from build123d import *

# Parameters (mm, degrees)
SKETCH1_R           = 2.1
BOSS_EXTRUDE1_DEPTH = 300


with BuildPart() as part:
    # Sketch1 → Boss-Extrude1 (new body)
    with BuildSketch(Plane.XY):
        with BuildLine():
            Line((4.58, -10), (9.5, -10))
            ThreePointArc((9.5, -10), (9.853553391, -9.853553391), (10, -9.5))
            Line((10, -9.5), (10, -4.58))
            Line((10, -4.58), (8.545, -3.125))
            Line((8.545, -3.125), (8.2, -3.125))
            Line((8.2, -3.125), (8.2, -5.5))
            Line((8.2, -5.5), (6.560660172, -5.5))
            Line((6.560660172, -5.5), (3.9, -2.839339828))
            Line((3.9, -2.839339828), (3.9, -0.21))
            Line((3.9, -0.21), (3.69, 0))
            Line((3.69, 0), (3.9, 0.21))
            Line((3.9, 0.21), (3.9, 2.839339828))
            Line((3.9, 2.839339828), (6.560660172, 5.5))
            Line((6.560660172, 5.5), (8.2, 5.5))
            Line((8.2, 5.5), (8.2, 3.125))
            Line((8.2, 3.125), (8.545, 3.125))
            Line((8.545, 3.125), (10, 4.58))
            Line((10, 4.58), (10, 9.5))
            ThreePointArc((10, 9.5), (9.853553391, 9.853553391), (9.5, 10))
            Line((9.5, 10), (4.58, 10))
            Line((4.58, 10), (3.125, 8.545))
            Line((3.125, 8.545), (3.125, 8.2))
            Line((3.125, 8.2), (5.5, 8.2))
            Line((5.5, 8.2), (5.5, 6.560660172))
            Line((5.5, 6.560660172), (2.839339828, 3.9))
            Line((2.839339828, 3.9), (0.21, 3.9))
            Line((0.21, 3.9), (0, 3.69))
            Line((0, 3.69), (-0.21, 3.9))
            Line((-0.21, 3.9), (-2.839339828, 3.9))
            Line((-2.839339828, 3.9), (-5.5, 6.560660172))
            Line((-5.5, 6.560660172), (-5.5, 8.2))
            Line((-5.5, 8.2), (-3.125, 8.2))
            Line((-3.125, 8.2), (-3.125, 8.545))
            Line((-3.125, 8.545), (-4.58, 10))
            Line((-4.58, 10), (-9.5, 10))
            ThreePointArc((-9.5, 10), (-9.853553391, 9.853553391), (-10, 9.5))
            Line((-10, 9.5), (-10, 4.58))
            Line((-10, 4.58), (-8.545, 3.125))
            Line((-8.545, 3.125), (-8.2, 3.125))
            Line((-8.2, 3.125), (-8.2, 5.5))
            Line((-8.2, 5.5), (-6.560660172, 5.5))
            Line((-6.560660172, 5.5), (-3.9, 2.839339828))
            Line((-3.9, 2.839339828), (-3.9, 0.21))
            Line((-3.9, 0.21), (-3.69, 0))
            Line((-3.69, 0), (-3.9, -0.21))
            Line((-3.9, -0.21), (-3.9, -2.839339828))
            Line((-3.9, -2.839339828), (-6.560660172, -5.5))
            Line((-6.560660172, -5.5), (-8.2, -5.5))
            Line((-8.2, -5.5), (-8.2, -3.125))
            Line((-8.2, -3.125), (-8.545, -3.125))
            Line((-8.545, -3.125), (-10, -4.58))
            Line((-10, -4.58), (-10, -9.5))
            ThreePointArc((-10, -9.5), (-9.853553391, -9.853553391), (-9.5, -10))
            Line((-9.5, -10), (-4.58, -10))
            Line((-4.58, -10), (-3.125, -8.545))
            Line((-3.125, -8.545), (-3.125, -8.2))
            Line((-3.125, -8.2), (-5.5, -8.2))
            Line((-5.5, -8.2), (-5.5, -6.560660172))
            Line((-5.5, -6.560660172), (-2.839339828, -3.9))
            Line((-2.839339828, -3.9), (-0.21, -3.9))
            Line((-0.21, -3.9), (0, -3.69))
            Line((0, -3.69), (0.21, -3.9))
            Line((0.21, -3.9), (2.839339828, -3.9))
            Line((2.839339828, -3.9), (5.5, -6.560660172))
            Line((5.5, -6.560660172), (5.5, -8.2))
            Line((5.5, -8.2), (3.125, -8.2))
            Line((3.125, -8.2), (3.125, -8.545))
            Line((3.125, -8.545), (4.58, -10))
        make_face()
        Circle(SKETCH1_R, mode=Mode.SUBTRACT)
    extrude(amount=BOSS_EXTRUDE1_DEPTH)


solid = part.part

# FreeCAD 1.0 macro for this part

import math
import FreeCAD as App
import Part
import Sketcher

doc = App.newDocument("Part")
params = doc.addObject("Spreadsheet::Sheet", "Params")
for row, (alias, value) in enumerate([
    ("sketch1_diameter", "4.2 mm"),
    ("sketch1_radius", "0.5 mm"),
    ("sketch1_width", "4.92 mm"),
    ("pad1_length", "300 mm"),
], start=1):
    params.set(f"A{row}", alias)
    params.set(f"B{row}", "=" + value)
    params.setAlias(f"B{row}", alias)

body = doc.addObject("PartDesign::Body", "Body")

sketch1 = doc.addObject("Sketcher::SketchObject", "Sketch")
body.addObject(sketch1)
sketch1.AttachmentSupport = (doc.XY_Plane, [""])
sketch1.MapMode = "FlatFace"
sketch1.addGeometry([
    Part.LineSegment(App.Vector(4.58, -10, 0), App.Vector(9.5, -10, 0)),
    Part.ArcOfCircle(Part.Circle(App.Vector(9.5, -9.5, 0), App.Vector(0, 0, 1), 0.5), math.radians(-90), math.radians(0)),
    Part.LineSegment(App.Vector(10, -9.5, 0), App.Vector(10, -4.58, 0)),
    Part.LineSegment(App.Vector(10, -4.58, 0), App.Vector(8.54, -3.12, 0)),
    Part.LineSegment(App.Vector(8.54, -3.12, 0), App.Vector(8.2, -3.12, 0)),
    Part.LineSegment(App.Vector(8.2, -3.12, 0), App.Vector(8.2, -5.5, 0)),
    Part.LineSegment(App.Vector(8.2, -5.5, 0), App.Vector(6.56, -5.5, 0)),
    Part.LineSegment(App.Vector(6.56, -5.5, 0), App.Vector(3.9, -2.84, 0)),
    Part.LineSegment(App.Vector(3.9, -2.84, 0), App.Vector(3.9, -0.21, 0)),
    Part.LineSegment(App.Vector(3.9, -0.21, 0), App.Vector(3.69, 0, 0)),
    Part.LineSegment(App.Vector(3.69, 0, 0), App.Vector(3.9, 0.21, 0)),
    Part.LineSegment(App.Vector(3.9, 0.21, 0), App.Vector(3.9, 2.84, 0)),
    Part.LineSegment(App.Vector(3.9, 2.84, 0), App.Vector(6.56, 5.5, 0)),
    Part.LineSegment(App.Vector(6.56, 5.5, 0), App.Vector(8.2, 5.5, 0)),
    Part.LineSegment(App.Vector(8.2, 5.5, 0), App.Vector(8.2, 3.12, 0)),
    Part.LineSegment(App.Vector(8.2, 3.12, 0), App.Vector(8.54, 3.12, 0)),
    Part.LineSegment(App.Vector(8.54, 3.12, 0), App.Vector(10, 4.58, 0)),
    Part.LineSegment(App.Vector(10, 4.58, 0), App.Vector(10, 9.5, 0)),
    Part.ArcOfCircle(Part.Circle(App.Vector(9.5, 9.5, 0), App.Vector(0, 0, 1), 0.5), math.radians(0), math.radians(90)),
    Part.LineSegment(App.Vector(9.5, 10, 0), App.Vector(4.58, 10, 0)),
    Part.LineSegment(App.Vector(4.58, 10, 0), App.Vector(3.12, 8.54, 0)),
    Part.LineSegment(App.Vector(3.12, 8.54, 0), App.Vector(3.12, 8.2, 0)),
    Part.LineSegment(App.Vector(3.12, 8.2, 0), App.Vector(5.5, 8.2, 0)),
    Part.LineSegment(App.Vector(5.5, 8.2, 0), App.Vector(5.5, 6.56, 0)),
    Part.LineSegment(App.Vector(5.5, 6.56, 0), App.Vector(2.84, 3.9, 0)),
    Part.LineSegment(App.Vector(2.84, 3.9, 0), App.Vector(0.21, 3.9, 0)),
    Part.LineSegment(App.Vector(0.21, 3.9, 0), App.Vector(0, 3.69, 0)),
    Part.LineSegment(App.Vector(0, 3.69, 0), App.Vector(-0.21, 3.9, 0)),
    Part.LineSegment(App.Vector(-0.21, 3.9, 0), App.Vector(-2.84, 3.9, 0)),
    Part.LineSegment(App.Vector(-2.84, 3.9, 0), App.Vector(-5.5, 6.56, 0)),
    Part.LineSegment(App.Vector(-5.5, 6.56, 0), App.Vector(-5.5, 8.2, 0)),
    Part.LineSegment(App.Vector(-5.5, 8.2, 0), App.Vector(-3.12, 8.2, 0)),
    Part.LineSegment(App.Vector(-3.12, 8.2, 0), App.Vector(-3.12, 8.54, 0)),
    Part.LineSegment(App.Vector(-3.12, 8.54, 0), App.Vector(-4.58, 10, 0)),
    Part.LineSegment(App.Vector(-4.58, 10, 0), App.Vector(-9.5, 10, 0)),
    Part.ArcOfCircle(Part.Circle(App.Vector(-9.5, 9.5, 0), App.Vector(0, 0, 1), 0.5), math.radians(90), math.radians(180)),
    Part.LineSegment(App.Vector(-10, 9.5, 0), App.Vector(-10, 4.58, 0)),
    Part.LineSegment(App.Vector(-10, 4.58, 0), App.Vector(-8.54, 3.12, 0)),
    Part.LineSegment(App.Vector(-8.54, 3.12, 0), App.Vector(-8.2, 3.12, 0)),
    Part.LineSegment(App.Vector(-8.2, 3.12, 0), App.Vector(-8.2, 5.5, 0)),
    Part.LineSegment(App.Vector(-8.2, 5.5, 0), App.Vector(-6.56, 5.5, 0)),
    Part.LineSegment(App.Vector(-6.56, 5.5, 0), App.Vector(-3.9, 2.84, 0)),
    Part.LineSegment(App.Vector(-3.9, 2.84, 0), App.Vector(-3.9, 0.21, 0)),
    Part.LineSegment(App.Vector(-3.9, 0.21, 0), App.Vector(-3.69, 0, 0)),
    Part.LineSegment(App.Vector(-3.69, 0, 0), App.Vector(-3.9, -0.21, 0)),
    Part.LineSegment(App.Vector(-3.9, -0.21, 0), App.Vector(-3.9, -2.84, 0)),
    Part.LineSegment(App.Vector(-3.9, -2.84, 0), App.Vector(-6.56, -5.5, 0)),
    Part.LineSegment(App.Vector(-6.56, -5.5, 0), App.Vector(-8.2, -5.5, 0)),
    Part.LineSegment(App.Vector(-8.2, -5.5, 0), App.Vector(-8.2, -3.12, 0)),
    Part.LineSegment(App.Vector(-8.2, -3.12, 0), App.Vector(-8.54, -3.12, 0)),
    Part.LineSegment(App.Vector(-8.54, -3.12, 0), App.Vector(-10, -4.58, 0)),
    Part.LineSegment(App.Vector(-10, -4.58, 0), App.Vector(-10, -9.5, 0)),
    Part.ArcOfCircle(Part.Circle(App.Vector(-9.5, -9.5, 0), App.Vector(0, 0, 1), 0.5), math.radians(180), math.radians(270)),
    Part.LineSegment(App.Vector(-9.5, -10, 0), App.Vector(-4.58, -10, 0)),
    Part.LineSegment(App.Vector(-4.58, -10, 0), App.Vector(-3.12, -8.54, 0)),
    Part.LineSegment(App.Vector(-3.12, -8.54, 0), App.Vector(-3.12, -8.2, 0)),
    Part.LineSegment(App.Vector(-3.12, -8.2, 0), App.Vector(-5.5, -8.2, 0)),
    Part.LineSegment(App.Vector(-5.5, -8.2, 0), App.Vector(-5.5, -6.56, 0)),
    Part.LineSegment(App.Vector(-5.5, -6.56, 0), App.Vector(-2.84, -3.9, 0)),
    Part.LineSegment(App.Vector(-2.84, -3.9, 0), App.Vector(-0.21, -3.9, 0)),
    Part.LineSegment(App.Vector(-0.21, -3.9, 0), App.Vector(0, -3.69, 0)),
    Part.LineSegment(App.Vector(0, -3.69, 0), App.Vector(0.21, -3.9, 0)),
    Part.LineSegment(App.Vector(0.21, -3.9, 0), App.Vector(2.84, -3.9, 0)),
    Part.LineSegment(App.Vector(2.84, -3.9, 0), App.Vector(5.5, -6.56, 0)),
    Part.LineSegment(App.Vector(5.5, -6.56, 0), App.Vector(5.5, -8.2, 0)),
    Part.LineSegment(App.Vector(5.5, -8.2, 0), App.Vector(3.12, -8.2, 0)),
    Part.LineSegment(App.Vector(3.12, -8.2, 0), App.Vector(3.12, -8.54, 0)),
    Part.LineSegment(App.Vector(3.12, -8.54, 0), App.Vector(4.58, -10, 0)),
    Part.Circle(App.Vector(0, 0, 0), App.Vector(0, 0, 1), 2.1),
], False)
sketch1.addConstraint([
    Sketcher.Constraint("Tangent", 0, 2, 1, 1),
    Sketcher.Constraint("Tangent", 1, 2, 2, 1),
    Sketcher.Constraint("Coincident", 2, 2, 3, 1),
    Sketcher.Constraint("Coincident", 3, 2, 4, 1),
    Sketcher.Constraint("Coincident", 4, 2, 5, 1),
    Sketcher.Constraint("Coincident", 5, 2, 6, 1),
    Sketcher.Constraint("Coincident", 6, 2, 7, 1),
    Sketcher.Constraint("Coincident", 7, 2, 8, 1),
    Sketcher.Constraint("Coincident", 8, 2, 9, 1),
    Sketcher.Constraint("Coincident", 9, 2, 10, 1),
    Sketcher.Constraint("Coincident", 10, 2, 11, 1),
    Sketcher.Constraint("Coincident", 11, 2, 12, 1),
    Sketcher.Constraint("Coincident", 12, 2, 13, 1),
    Sketcher.Constraint("Coincident", 13, 2, 14, 1),
    Sketcher.Constraint("Coincident", 14, 2, 15, 1),
    Sketcher.Constraint("Coincident", 15, 2, 16, 1),
    Sketcher.Constraint("Coincident", 16, 2, 17, 1),
    Sketcher.Constraint("Tangent", 17, 2, 18, 1),
    Sketcher.Constraint("Tangent", 18, 2, 19, 1),
    Sketcher.Constraint("Coincident", 19, 2, 20, 1),
    Sketcher.Constraint("Coincident", 20, 2, 21, 1),
    Sketcher.Constraint("Coincident", 21, 2, 22, 1),
    Sketcher.Constraint("Coincident", 22, 2, 23, 1),
    Sketcher.Constraint("Coincident", 23, 2, 24, 1),
    Sketcher.Constraint("Coincident", 24, 2, 25, 1),
    Sketcher.Constraint("Coincident", 25, 2, 26, 1),
    Sketcher.Constraint("Coincident", 26, 2, 27, 1),
    Sketcher.Constraint("Coincident", 27, 2, 28, 1),
    Sketcher.Constraint("Coincident", 28, 2, 29, 1),
    Sketcher.Constraint("Coincident", 29, 2, 30, 1),
    Sketcher.Constraint("Coincident", 30, 2, 31, 1),
    Sketcher.Constraint("Coincident", 31, 2, 32, 1),
    Sketcher.Constraint("Coincident", 32, 2, 33, 1),
    Sketcher.Constraint("Coincident", 33, 2, 34, 1),
    Sketcher.Constraint("Tangent", 34, 2, 35, 1),
    Sketcher.Constraint("Tangent", 35, 2, 36, 1),
    Sketcher.Constraint("Coincident", 36, 2, 37, 1),
    Sketcher.Constraint("Coincident", 37, 2, 38, 1),
    Sketcher.Constraint("Coincident", 38, 2, 39, 1),
    Sketcher.Constraint("Coincident", 39, 2, 40, 1),
    Sketcher.Constraint("Coincident", 40, 2, 41, 1),
    Sketcher.Constraint("Coincident", 41, 2, 42, 1),
    Sketcher.Constraint("Coincident", 42, 2, 43, 1),
    Sketcher.Constraint("Coincident", 43, 2, 44, 1),
    Sketcher.Constraint("Coincident", 44, 2, 45, 1),
    Sketcher.Constraint("Coincident", 45, 2, 46, 1),
    Sketcher.Constraint("Coincident", 46, 2, 47, 1),
    Sketcher.Constraint("Coincident", 47, 2, 48, 1),
    Sketcher.Constraint("Coincident", 48, 2, 49, 1),
    Sketcher.Constraint("Coincident", 49, 2, 50, 1),
    Sketcher.Constraint("Coincident", 50, 2, 51, 1),
    Sketcher.Constraint("Tangent", 51, 2, 52, 1),
    Sketcher.Constraint("Tangent", 52, 2, 53, 1),
    Sketcher.Constraint("Coincident", 53, 2, 54, 1),
    Sketcher.Constraint("Coincident", 54, 2, 55, 1),
    Sketcher.Constraint("Coincident", 55, 2, 56, 1),
    Sketcher.Constraint("Coincident", 56, 2, 57, 1),
    Sketcher.Constraint("Coincident", 57, 2, 58, 1),
    Sketcher.Constraint("Coincident", 58, 2, 59, 1),
    Sketcher.Constraint("Coincident", 59, 2, 60, 1),
    Sketcher.Constraint("Coincident", 60, 2, 61, 1),
    Sketcher.Constraint("Coincident", 61, 2, 62, 1),
    Sketcher.Constraint("Coincident", 62, 2, 63, 1),
    Sketcher.Constraint("Coincident", 63, 2, 64, 1),
    Sketcher.Constraint("Coincident", 64, 2, 65, 1),
    Sketcher.Constraint("Coincident", 65, 2, 66, 1),
    Sketcher.Constraint("Coincident", 66, 2, 67, 1),
    Sketcher.Constraint("Coincident", 67, 2, 0, 1),
    Sketcher.Constraint("Horizontal", 0),
    Sketcher.Constraint("Vertical", 2),
    Sketcher.Constraint("Horizontal", 4),
    Sketcher.Constraint("Vertical", 5),
    Sketcher.Constraint("Horizontal", 6),
    Sketcher.Constraint("Vertical", 8),
    Sketcher.Constraint("Vertical", 11),
    Sketcher.Constraint("Horizontal", 13),
    Sketcher.Constraint("Vertical", 14),
    Sketcher.Constraint("Horizontal", 15),
    Sketcher.Constraint("Vertical", 17),
    Sketcher.Constraint("Horizontal", 19),
    Sketcher.Constraint("Vertical", 21),
    Sketcher.Constraint("Horizontal", 22),
    Sketcher.Constraint("Vertical", 23),
    Sketcher.Constraint("Horizontal", 25),
    Sketcher.Constraint("Horizontal", 28),
    Sketcher.Constraint("Vertical", 30),
    Sketcher.Constraint("Horizontal", 31),
    Sketcher.Constraint("Vertical", 32),
    Sketcher.Constraint("Horizontal", 34),
    Sketcher.Constraint("Vertical", 36),
    Sketcher.Constraint("Horizontal", 38),
    Sketcher.Constraint("Vertical", 39),
    Sketcher.Constraint("Horizontal", 40),
    Sketcher.Constraint("Vertical", 42),
    Sketcher.Constraint("Vertical", 45),
    Sketcher.Constraint("Horizontal", 47),
    Sketcher.Constraint("Vertical", 48),
    Sketcher.Constraint("Horizontal", 49),
    Sketcher.Constraint("Vertical", 51),
    Sketcher.Constraint("Horizontal", 53),
    Sketcher.Constraint("Vertical", 55),
    Sketcher.Constraint("Horizontal", 56),
    Sketcher.Constraint("Vertical", 57),
    Sketcher.Constraint("Horizontal", 59),
    Sketcher.Constraint("Horizontal", 62),
    Sketcher.Constraint("Vertical", 64),
    Sketcher.Constraint("Horizontal", 65),
    Sketcher.Constraint("Vertical", 66),
    Sketcher.Constraint("Coincident", 68, 3, -1, 1),
    Sketcher.Constraint("Equal", 1, 18),
    Sketcher.Constraint("Equal", 18, 35),
    Sketcher.Constraint("Equal", 35, 52),
    Sketcher.Constraint("Symmetric", 1, 3, 35, 3, -1, 1),
    Sketcher.Constraint("Symmetric", 18, 3, 52, 3, -1, 1),
    Sketcher.Constraint("Symmetric", 3, 2, 37, 2, -1, 1),
    Sketcher.Constraint("Symmetric", 5, 2, 39, 2, -1, 1),
    Sketcher.Constraint("Symmetric", 7, 2, 41, 2, -1, 1),
    Sketcher.Constraint("Symmetric", 9, 2, 43, 2, -1, 1),
    Sketcher.Constraint("Symmetric", 10, 2, 44, 2, -1, 1),
    Sketcher.Constraint("Symmetric", 12, 2, 46, 2, -1, 1),
    Sketcher.Constraint("Symmetric", 14, 2, 48, 2, -1, 1),
    Sketcher.Constraint("Symmetric", 20, 2, 54, 2, -1, 1),
    Sketcher.Constraint("Symmetric", 22, 2, 56, 2, -1, 1),
    Sketcher.Constraint("Symmetric", 24, 2, 58, 2, -1, 1),
    Sketcher.Constraint("Symmetric", 26, 2, 60, 2, -1, 1),
    Sketcher.Constraint("Symmetric", 27, 2, 61, 2, -1, 1),
    Sketcher.Constraint("Symmetric", 29, 2, 63, 2, -1, 1),
    Sketcher.Constraint("Symmetric", 31, 2, 65, 2, -1, 1),
    Sketcher.Constraint("Symmetric", 18, 3, 35, 3, -2),
    Sketcher.Constraint("Symmetric", 25, 2, 27, 2, -2),
    Sketcher.Constraint("Symmetric", 23, 2, 29, 2, -2),
    Sketcher.Constraint("Symmetric", 21, 2, 31, 2, -2),
    Sketcher.Constraint("Symmetric", 15, 2, 37, 2, -2),
    Sketcher.Constraint("Symmetric", 13, 2, 39, 2, -2),
    Sketcher.Constraint("Symmetric", 11, 2, 41, 2, -2),
    Sketcher.Constraint("PointOnObject", 9, 2, -1),
    Sketcher.Constraint("PointOnObject", 26, 2, -2),
    Sketcher.Constraint("Parallel", 3, 7),
    Sketcher.Constraint("Parallel", 7, 9),
    Sketcher.Constraint("Perpendicular", 9, 10),
    Sketcher.Constraint("Parallel", 10, 12),
    Sketcher.Constraint("Parallel", 12, 16),
    Sketcher.Constraint("Parallel", 16, 20),
    Sketcher.Constraint("Parallel", 20, 24),
    Sketcher.Constraint("Parallel", 24, 26),
    Sketcher.Constraint("Perpendicular", 26, 27),
    Sketcher.Constraint("Parallel", 27, 29),
    Sketcher.Constraint("Parallel", 29, 33),
    Sketcher.Constraint("Parallel", 33, 37),
    Sketcher.Constraint("Parallel", 37, 41),
    Sketcher.Constraint("Parallel", 41, 43),
    Sketcher.Constraint("Parallel", 44, 46),
    Sketcher.Constraint("Parallel", 46, 50),
    Sketcher.Constraint("Parallel", 50, 54),
    Sketcher.Constraint("Parallel", 54, 58),
    Sketcher.Constraint("Parallel", 58, 60),
    Sketcher.Constraint("Parallel", 61, 63),
    Sketcher.Constraint("Parallel", 63, 67),
    Sketcher.Constraint("Horizontal", 20, 2, 32, 2),
    Sketcher.Constraint("Horizontal", 2, 2, 50, 2),
    Sketcher.Constraint("Horizontal", 54, 2, 66, 2),
    Sketcher.Constraint("Equal", 53, 2),
    Sketcher.Constraint("Equal", 65, 5),
    Sketcher.Constraint("Equal", 62, 8),
    Sketcher.Constraint("Equal", 49, 21),
    Sketcher.Constraint("Equal", 47, 23),
    Sketcher.Constraint("Equal", 16, 20),
    Sketcher.Constraint("Equal", 12, 24),
    Sketcher.Constraint("Equal", 10, 26),
    Sketcher.Constraint("Diameter", 68, 4.2),
    Sketcher.Constraint("Radius", 1, 0.5),
    Sketcher.Constraint("DistanceY", 0, 2, -1, 1, 10.0),
    Sketcher.Constraint("DistanceX", 0, 1, 0, 2, 4.92),
    Sketcher.Constraint("DistanceX", -1, 1, 4, 2, 8.2),
    Sketcher.Constraint("DistanceY", 5, 2, -1, 1, 5.5),
    Sketcher.Constraint("DistanceX", -1, 1, 7, 2, 3.9),
    Sketcher.Constraint("DistanceX", 4, 2, 4, 1, 0.345),
    Sketcher.Constraint("DistanceY", 8, 2, -1, 1, 0.21),
    Sketcher.Constraint("DistanceX", 6, 2, 6, 1, 1.63934),
])
sketch1.setExpression("Constraints[169]", "Params.sketch1_diameter")
sketch1.setExpression("Constraints[170]", "Params.sketch1_radius")
sketch1.setExpression("Constraints[172]", "Params.sketch1_width")
pad1 = doc.addObject("PartDesign::Pad", "Pad")
body.addObject(pad1)
pad1.Profile = sketch1
pad1.setExpression("Length", "Params.pad1_length")

doc.recompute()
